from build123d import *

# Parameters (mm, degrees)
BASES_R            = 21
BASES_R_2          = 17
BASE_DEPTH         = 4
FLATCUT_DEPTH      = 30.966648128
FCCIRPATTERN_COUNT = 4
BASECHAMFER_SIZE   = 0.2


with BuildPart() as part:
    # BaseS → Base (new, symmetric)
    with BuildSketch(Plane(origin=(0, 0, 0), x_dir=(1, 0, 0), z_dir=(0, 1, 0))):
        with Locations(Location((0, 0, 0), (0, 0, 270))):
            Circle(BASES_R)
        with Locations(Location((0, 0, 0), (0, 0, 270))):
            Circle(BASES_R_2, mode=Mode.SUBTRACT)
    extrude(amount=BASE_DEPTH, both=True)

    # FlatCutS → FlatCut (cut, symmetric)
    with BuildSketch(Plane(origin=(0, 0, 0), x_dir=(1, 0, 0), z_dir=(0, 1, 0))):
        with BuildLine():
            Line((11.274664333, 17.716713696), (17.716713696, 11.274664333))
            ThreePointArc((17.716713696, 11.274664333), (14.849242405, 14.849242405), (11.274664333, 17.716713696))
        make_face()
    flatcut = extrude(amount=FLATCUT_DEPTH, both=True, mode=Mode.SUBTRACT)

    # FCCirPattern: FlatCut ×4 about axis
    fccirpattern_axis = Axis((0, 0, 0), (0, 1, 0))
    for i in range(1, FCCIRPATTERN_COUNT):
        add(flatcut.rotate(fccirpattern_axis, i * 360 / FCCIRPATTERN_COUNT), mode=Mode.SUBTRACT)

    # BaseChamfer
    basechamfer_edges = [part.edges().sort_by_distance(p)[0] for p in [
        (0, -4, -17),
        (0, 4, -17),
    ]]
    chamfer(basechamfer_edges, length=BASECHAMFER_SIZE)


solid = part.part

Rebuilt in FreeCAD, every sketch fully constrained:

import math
import FreeCAD as App
import Part
import Sketcher

V = App.Vector
Q = App.Units.Quantity


def edges_at(feature, points):
    """Names of the edges that pass closest to the given points."""
    edges = feature.Shape.Edges
    near = lambda p: min(range(len(edges)), key=lambda i: edges[i].distToShape(Part.Vertex(*p))[0])
    return sorted({f"Edge{near(p) + 1}" for p in points})

doc = App.newDocument("Part")
params = doc.addObject("Spreadsheet::Sheet", "Params")
for row, (alias, value) in enumerate([
    ("sketch1_diameter", "42 mm"),
    ("sketch1_diameter2", "34 mm"),
    ("pad1_length", "8 mm"),
    ("sketch2_radius", "21 mm"),
    ("pocket1_length", "61.933296 mm"),
    ("chamfer_size", "0.2 mm"),
], start=1):
    params.set(f"A{row}", alias)
    params.set(f"B{row}", "=" + value)
    params.setAlias(f"B{row}", alias)

body = doc.addObject("PartDesign::Body", "Body")

sketch1 = body.newObject("Sketcher::SketchObject", "Sketch")
sketch1.AttachmentSupport = (doc.getObject("XZ_Plane"), [""])
sketch1.MapMode = "FlatFace"
sketch1.addGeometry([
    Part.Circle(V(0, 0, 0), V(0, 0, 1), 21),
    Part.Circle(V(0, 0, 0), V(0, 0, 1), 17),
], False)
sketch1.addConstraint([
    Sketcher.Constraint("Coincident", 0, 3, -1, 1),
    Sketcher.Constraint("Coincident", 1, 3, -1, 1),
    Sketcher.Constraint("Diameter", 0, 42.0),
    Sketcher.Constraint("Diameter", 1, 34.0),
])
sketch1.setExpression("Constraints[2]", "Params.sketch1_diameter")
sketch1.setExpression("Constraints[3]", "Params.sketch1_diameter2")
pad1 = body.newObject("PartDesign::Pad", "Pad")
pad1.Profile = sketch1
pad1.setExpression("Length", "Params.pad1_length")
pad1.Midplane = True

sketch2 = body.newObject("Sketcher::SketchObject", "Sketch001")
sketch2.AttachmentSupport = (doc.getObject("XZ_Plane"), [""])
sketch2.MapMode = "FlatFace"
sketch2.addGeometry([
    Part.LineSegment(V(11, -18, 0), V(18, -11, 0)),
    Part.ArcOfCircle(Part.Circle(V(0, 0, 0), V(0, 0, 1), 21), math.radians(-58), math.radians(-32)),
], False)
sketch2.addConstraint([
    Sketcher.Constraint("Coincident", 0, 1, 1, 1),
    Sketcher.Constraint("Coincident", 1, 2, 0, 2),
    Sketcher.Constraint("Coincident", 1, 3, -1, 1),
    Sketcher.Constraint("Radius", 1, 21.0),
    Sketcher.Constraint("Angle", 0, Q("45 deg")),
    Sketcher.Constraint("DistanceX", 0, 1, 1, 2, 6.442049),
])
sketch2.setExpression("Constraints[3]", "Params.sketch2_radius")
pocket1 = body.newObject("PartDesign::Pocket", "Pocket")
pocket1.Profile = sketch2
pocket1.setExpression("Length", "Params.pocket1_length")
pocket1.Midplane = True
doc.recompute()

polarpattern = body.newObject("PartDesign::PolarPattern", "PolarPattern")
polarpattern.Originals = [pocket1]
polarpattern.Axis = (doc.getObject("Y_Axis"), [""])
polarpattern.Angle = 360
polarpattern.Occurrences = 4
body.Tip = polarpattern
doc.recompute()

chamfer = body.newObject("PartDesign::Chamfer", "Chamfer")
chamfer.Base = (polarpattern, edges_at(polarpattern, [(0, -4, -17), (0, 4, -17)]))
chamfer.setExpression("Size", "Params.chamfer_size")

doc.recompute()
